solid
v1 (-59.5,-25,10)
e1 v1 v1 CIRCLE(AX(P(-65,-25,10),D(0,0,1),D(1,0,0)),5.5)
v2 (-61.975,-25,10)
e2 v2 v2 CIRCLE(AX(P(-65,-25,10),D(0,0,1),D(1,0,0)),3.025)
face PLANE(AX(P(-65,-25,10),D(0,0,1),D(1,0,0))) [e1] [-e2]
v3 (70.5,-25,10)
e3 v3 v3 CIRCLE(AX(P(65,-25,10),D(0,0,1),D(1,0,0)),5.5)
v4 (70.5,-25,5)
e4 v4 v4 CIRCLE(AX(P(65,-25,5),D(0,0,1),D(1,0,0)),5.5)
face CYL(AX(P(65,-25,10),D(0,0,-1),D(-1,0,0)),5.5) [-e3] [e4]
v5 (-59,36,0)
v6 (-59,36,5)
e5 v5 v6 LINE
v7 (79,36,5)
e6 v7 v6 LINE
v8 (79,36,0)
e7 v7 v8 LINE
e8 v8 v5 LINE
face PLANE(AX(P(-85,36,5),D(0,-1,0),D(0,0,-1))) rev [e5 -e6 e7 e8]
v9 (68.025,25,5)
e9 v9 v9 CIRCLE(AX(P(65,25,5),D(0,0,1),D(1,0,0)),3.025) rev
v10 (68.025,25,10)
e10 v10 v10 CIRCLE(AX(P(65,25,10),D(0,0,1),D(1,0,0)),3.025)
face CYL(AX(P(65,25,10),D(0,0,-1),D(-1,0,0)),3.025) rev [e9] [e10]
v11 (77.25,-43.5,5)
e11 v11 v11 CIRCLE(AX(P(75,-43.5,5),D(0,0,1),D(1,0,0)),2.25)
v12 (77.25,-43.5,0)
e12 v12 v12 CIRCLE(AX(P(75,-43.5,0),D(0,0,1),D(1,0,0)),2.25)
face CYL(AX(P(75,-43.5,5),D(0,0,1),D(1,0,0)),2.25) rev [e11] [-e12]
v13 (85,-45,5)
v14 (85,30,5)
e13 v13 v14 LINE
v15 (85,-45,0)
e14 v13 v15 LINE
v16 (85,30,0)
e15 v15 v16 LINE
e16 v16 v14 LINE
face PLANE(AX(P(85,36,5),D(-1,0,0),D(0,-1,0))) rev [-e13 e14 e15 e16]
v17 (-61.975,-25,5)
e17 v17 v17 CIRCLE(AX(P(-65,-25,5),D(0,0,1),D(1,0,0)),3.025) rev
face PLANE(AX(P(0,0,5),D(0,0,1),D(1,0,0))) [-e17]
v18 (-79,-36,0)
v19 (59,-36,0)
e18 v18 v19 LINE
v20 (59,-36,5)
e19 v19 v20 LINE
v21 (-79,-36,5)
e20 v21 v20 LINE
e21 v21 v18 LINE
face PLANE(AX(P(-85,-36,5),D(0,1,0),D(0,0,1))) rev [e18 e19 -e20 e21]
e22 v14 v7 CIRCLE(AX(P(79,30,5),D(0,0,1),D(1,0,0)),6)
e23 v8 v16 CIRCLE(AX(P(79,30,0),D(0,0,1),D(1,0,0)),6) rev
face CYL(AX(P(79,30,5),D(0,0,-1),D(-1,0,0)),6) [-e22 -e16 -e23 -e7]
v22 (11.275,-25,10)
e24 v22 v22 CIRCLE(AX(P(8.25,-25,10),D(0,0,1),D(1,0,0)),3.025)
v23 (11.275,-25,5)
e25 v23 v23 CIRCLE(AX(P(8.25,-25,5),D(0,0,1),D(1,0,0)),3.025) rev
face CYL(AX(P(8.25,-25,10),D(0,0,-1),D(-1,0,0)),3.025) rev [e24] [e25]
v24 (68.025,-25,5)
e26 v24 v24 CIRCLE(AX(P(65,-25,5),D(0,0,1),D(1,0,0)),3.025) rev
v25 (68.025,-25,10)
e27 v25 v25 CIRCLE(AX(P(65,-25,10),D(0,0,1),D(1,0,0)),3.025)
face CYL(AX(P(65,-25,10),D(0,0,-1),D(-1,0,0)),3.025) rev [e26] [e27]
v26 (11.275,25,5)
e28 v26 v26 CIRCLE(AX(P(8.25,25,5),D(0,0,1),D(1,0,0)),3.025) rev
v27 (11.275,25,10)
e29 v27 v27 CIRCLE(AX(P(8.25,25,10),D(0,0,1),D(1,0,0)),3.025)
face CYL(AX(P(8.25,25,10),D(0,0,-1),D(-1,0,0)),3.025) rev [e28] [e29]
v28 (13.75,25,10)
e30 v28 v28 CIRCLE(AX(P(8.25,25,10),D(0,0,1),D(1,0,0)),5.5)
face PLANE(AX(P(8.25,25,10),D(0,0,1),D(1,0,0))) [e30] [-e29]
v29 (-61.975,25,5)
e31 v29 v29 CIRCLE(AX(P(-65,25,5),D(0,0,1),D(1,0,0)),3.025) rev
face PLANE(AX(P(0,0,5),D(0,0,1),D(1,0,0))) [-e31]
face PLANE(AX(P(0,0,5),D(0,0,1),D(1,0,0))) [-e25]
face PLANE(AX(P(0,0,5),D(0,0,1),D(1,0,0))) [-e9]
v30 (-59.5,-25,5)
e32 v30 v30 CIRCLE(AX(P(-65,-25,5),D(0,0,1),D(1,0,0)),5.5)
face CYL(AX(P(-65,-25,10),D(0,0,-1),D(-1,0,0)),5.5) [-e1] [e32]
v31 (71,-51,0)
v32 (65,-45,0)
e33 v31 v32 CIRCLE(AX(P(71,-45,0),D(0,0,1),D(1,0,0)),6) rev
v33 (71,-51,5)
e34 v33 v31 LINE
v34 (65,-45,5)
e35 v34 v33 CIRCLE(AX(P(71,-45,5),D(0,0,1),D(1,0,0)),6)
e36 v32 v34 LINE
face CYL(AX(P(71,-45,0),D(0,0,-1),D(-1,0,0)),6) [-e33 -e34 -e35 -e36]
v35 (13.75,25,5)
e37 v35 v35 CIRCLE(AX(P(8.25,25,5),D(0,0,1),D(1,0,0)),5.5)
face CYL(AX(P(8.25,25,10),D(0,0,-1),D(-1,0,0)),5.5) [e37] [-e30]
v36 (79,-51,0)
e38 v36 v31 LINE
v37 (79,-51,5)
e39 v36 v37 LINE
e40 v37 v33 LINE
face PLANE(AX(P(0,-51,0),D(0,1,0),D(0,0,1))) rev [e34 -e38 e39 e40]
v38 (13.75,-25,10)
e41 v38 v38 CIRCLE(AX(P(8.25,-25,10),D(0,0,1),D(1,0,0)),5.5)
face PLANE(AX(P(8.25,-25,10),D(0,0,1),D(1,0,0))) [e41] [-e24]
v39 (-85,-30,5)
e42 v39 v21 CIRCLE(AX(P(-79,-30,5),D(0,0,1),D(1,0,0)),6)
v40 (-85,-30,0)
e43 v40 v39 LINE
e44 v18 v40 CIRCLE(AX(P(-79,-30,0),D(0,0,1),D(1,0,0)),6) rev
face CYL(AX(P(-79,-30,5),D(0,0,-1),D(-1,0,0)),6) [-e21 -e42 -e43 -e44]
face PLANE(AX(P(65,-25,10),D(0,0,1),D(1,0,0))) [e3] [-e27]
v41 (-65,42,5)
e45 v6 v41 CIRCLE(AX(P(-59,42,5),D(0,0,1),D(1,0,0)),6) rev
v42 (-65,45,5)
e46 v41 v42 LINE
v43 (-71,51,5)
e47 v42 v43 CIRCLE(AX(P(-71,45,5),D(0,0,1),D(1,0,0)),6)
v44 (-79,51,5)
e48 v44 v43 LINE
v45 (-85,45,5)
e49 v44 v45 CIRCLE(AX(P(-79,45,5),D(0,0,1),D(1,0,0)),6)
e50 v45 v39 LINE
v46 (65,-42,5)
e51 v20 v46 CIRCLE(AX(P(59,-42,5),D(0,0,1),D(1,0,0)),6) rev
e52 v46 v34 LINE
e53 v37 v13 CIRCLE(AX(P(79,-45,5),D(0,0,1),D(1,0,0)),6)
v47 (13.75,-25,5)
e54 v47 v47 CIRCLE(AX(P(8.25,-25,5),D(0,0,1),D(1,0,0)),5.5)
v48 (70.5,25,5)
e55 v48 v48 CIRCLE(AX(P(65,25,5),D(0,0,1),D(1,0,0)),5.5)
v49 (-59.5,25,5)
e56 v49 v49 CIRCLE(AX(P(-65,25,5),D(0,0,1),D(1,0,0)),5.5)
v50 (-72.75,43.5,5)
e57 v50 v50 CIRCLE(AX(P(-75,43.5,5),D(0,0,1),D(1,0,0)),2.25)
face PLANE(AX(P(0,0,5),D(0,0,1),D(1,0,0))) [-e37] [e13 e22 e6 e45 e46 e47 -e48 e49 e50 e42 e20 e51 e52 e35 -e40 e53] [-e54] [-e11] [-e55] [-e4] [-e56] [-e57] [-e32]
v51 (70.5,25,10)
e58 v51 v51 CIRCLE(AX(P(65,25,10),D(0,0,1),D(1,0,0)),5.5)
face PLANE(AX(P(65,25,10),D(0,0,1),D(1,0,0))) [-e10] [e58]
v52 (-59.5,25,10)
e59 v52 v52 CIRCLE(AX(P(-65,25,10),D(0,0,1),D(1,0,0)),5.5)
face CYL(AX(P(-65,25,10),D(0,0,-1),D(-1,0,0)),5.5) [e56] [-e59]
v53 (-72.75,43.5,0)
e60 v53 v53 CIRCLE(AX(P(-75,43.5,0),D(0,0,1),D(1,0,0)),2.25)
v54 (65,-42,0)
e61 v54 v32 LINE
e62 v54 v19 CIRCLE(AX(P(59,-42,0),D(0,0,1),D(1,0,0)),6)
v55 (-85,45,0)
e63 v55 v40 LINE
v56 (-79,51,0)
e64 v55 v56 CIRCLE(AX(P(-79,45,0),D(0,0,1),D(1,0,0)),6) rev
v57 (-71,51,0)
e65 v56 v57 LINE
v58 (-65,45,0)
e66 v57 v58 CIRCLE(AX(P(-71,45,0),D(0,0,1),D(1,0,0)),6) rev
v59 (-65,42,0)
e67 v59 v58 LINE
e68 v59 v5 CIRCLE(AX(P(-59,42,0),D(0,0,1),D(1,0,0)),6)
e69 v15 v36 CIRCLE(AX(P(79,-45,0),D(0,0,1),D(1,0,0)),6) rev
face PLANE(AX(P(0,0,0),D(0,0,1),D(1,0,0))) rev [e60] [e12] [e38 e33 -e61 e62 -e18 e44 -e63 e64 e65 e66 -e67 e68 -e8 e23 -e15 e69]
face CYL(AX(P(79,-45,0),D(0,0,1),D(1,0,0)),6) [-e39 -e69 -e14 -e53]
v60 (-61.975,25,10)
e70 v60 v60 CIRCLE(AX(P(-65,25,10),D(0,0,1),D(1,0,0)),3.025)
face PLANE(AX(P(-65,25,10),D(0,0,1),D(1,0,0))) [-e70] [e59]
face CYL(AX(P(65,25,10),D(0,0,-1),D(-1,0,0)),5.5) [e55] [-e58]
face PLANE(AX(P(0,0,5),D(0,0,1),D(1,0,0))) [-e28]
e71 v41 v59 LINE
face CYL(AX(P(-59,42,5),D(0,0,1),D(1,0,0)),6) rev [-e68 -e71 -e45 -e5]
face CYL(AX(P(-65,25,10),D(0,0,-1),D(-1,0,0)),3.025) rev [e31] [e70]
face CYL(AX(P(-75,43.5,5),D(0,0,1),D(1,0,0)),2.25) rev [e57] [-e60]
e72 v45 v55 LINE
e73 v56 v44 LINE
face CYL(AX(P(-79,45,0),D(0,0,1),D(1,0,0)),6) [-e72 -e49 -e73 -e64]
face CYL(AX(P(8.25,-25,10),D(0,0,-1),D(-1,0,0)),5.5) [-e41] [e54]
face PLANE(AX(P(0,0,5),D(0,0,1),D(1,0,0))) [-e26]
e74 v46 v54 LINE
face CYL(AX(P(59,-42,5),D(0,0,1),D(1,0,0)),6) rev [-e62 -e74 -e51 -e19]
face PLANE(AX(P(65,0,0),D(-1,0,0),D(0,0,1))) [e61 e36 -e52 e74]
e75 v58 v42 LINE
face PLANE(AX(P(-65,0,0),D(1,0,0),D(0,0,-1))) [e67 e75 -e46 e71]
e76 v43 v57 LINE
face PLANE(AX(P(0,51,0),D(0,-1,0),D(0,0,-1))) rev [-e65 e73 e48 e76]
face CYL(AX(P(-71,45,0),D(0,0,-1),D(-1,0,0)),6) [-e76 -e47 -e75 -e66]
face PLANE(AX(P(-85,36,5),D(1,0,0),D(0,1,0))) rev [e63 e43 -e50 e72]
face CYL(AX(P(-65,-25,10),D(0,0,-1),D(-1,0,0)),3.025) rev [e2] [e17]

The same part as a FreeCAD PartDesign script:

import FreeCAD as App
import Part
import Sketcher

V = App.Vector


def edges_at(feature, points):
    """Names of the edges that pass closest to the given points."""
    edges = feature.Shape.Edges
    near = lambda p: min(range(len(edges)), key=lambda i: edges[i].distToShape(Part.Vertex(*p))[0])
    return sorted({f"Edge{near(p) + 1}" for p in points})


def add_polygon(sketch, points):
    """Adds a closed chain of lines whose ends are joined by coincident constraints."""
    first, n = sketch.GeometryCount, len(points)
    for a, b in zip(points, points[1:] + points[:1]):
        sketch.addGeometry(Part.LineSegment(App.Vector(*a, 0), App.Vector(*b, 0)), False)
    for i in range(n):
        sketch.addConstraint(Sketcher.Constraint("Coincident", first + i, 2, first + (i + 1) % n, 1))

doc = App.newDocument("Part")
params = doc.addObject("Spreadsheet::Sheet", "Params")
for row, (alias, value) in enumerate([
    ("sketch1_width", "170 mm"),
    ("sketch1_height", "72 mm"),
    ("pad1_length", "5 mm"),
    ("sketch2_diameter", "11 mm"),
    ("sketch2_diameter2", "6.05 mm"),
    ("pad2_length", "5 mm"),
    ("sketch3_width", "20 mm"),
    ("sketch3_height", "15 mm"),
    ("pad3_length", "5 mm"),
    ("fillet_radius", "6 mm"),
    ("sketch4_diameter", "4.5 mm"),
    ("hole_diameter", "4.5 mm"),
], start=1):
    params.set(f"A{row}", alias)
    params.set(f"B{row}", "=" + value)
    params.setAlias(f"B{row}", alias)

body = doc.addObject("PartDesign::Body", "Body")

# Sketch on XY plane
sketch1 = body.newObject("Sketcher::SketchObject", "Sketch")
sketch1.AttachmentSupport = (doc.getObject("XY_Plane"), [""])
sketch1.MapMode = "FlatFace"
add_polygon(sketch1, [(-85, 36), (-85, -36), (85, -36), (85, 36)])  # lines 0-3
sketch1.addConstraint([
    Sketcher.Constraint("Vertical", 0),
    Sketcher.Constraint("Horizontal", 1),
    Sketcher.Constraint("Vertical", 2),
    Sketcher.Constraint("Horizontal", 3),
    Sketcher.Constraint("Symmetric", 0, 2, 2, 2, -1, 1),
    Sketcher.Constraint("DistanceX", 1, 1, 1, 2, 170.0),
    Sketcher.Constraint("DistanceY", 0, 2, 0, 1, 72.0),
])
sketch1.setExpression("Constraints[9]", "Params.sketch1_width")
sketch1.setExpression("Constraints[10]", "Params.sketch1_height")
pad1 = body.newObject("PartDesign::Pad", "Pad")
pad1.Profile = sketch1
pad1.setExpression("Length", "Params.pad1_length")

# Sketch on XY plane
sketch2 = body.newObject("Sketcher::SketchObject", "Sketch001")
sketch2.AttachmentSupport = (doc.getObject("XY_Plane"), [""])
sketch2.MapMode = "FlatFace"
sketch2.AttachmentOffset = App.Placement(V(0, 0, 5), App.Rotation())
sketch2.addGeometry([
    Part.Circle(V(65, 25, 0), V(0, 0, 1), 5.5),  # 0
    Part.Circle(V(65, 25, 0), V(0, 0, 1), 3),  # 1
    Part.Circle(V(8.2, 25, 0), V(0, 0, 1), 5.5),  # 2
    Part.Circle(V(8.2, 25, 0), V(0, 0, 1), 3),  # 3
    Part.Circle(V(-65, 25, 0), V(0, 0, 1), 5.5),  # 4
    Part.Circle(V(-65, 25, 0), V(0, 0, 1), 3),  # 5
    Part.Circle(V(-65, -25, 0), V(0, 0, 1), 5.5),  # 6
    Part.Circle(V(-65, -25, 0), V(0, 0, 1), 3),  # 7
    Part.Circle(V(8.2, -25, 0), V(0, 0, 1), 5.5),  # 8
    Part.Circle(V(8.2, -25, 0), V(0, 0, 1), 3),  # 9
    Part.Circle(V(65, -25, 0), V(0, 0, 1), 5.5),  # 10
    Part.Circle(V(65, -25, 0), V(0, 0, 1), 3),  # 11
], False)
sketch2.addConstraint([
    Sketcher.Constraint("Coincident", 1, 3, 0, 3),
    Sketcher.Constraint("Coincident", 3, 3, 2, 3),
    Sketcher.Constraint("Coincident", 5, 3, 4, 3),
    Sketcher.Constraint("Coincident", 7, 3, 6, 3),
    Sketcher.Constraint("Coincident", 9, 3, 8, 3),
    Sketcher.Constraint("Coincident", 11, 3, 10, 3),
    Sketcher.Constraint("Equal", 0, 2),
    Sketcher.Constraint("Equal", 1, 3),
    Sketcher.Constraint("Equal", 2, 4),
    Sketcher.Constraint("Equal", 3, 5),
    Sketcher.Constraint("Equal", 4, 6),
    Sketcher.Constraint("Equal", 5, 7),
    Sketcher.Constraint("Equal", 6, 8),
    Sketcher.Constraint("Equal", 7, 9),
    Sketcher.Constraint("Equal", 8, 10),
    Sketcher.Constraint("Equal", 9, 11),
    Sketcher.Constraint("Symmetric", 0, 3, 6, 3, -1, 1),
    Sketcher.Constraint("Symmetric", 4, 3, 10, 3, -1, 1),
    Sketcher.Constraint("Symmetric", 0, 3, 4, 3, -2),
    Sketcher.Constraint("Symmetric", 2, 3, 8, 3, -1),
    Sketcher.Constraint("Horizontal", 1, 3, 2, 3),
    Sketcher.Constraint("Diameter", 0, 11.0),
    Sketcher.Constraint("Diameter", 1, 6.05),
    Sketcher.Constraint("DistanceX", -1, 1, 0, 3, 65.0),
    Sketcher.Constraint("DistanceY", -1, 1, 0, 3, 25.0),
    Sketcher.Constraint("DistanceX", -1, 1, 2, 3, 8.25),
])
sketch2.setExpression("Constraints[21]", "Params.sketch2_diameter")
sketch2.setExpression("Constraints[22]", "Params.sketch2_diameter2")
pad2 = body.newObject("PartDesign::Pad", "Pad001")
pad2.Profile = sketch2
pad2.setExpression("Length", "Params.pad2_length")

# Sketch on XY plane
sketch3 = body.newObject("Sketcher::SketchObject", "Sketch002")
sketch3.AttachmentSupport = (doc.getObject("XY_Plane"), [""])
sketch3.MapMode = "FlatFace"
sketch3.AttachmentOffset = App.Placement(V(0, 0, 5), App.Rotation())
add_polygon(sketch3, [(-85, 51), (-85, 36), (-65, 36), (-65, 51)])  # lines 0-3
add_polygon(sketch3, [(85, -36), (65, -36), (65, -51), (85, -51)])  # lines 4-7
sketch3.addConstraint([
    Sketcher.Constraint("Vertical", 0),
    Sketcher.Constraint("Horizontal", 1),
    Sketcher.Constraint("Vertical", 2),
    Sketcher.Constraint("Horizontal", 3),
    Sketcher.Constraint("Horizontal", 4),
    Sketcher.Constraint("Vertical", 5),
    Sketcher.Constraint("Horizontal", 6),
    Sketcher.Constraint("Vertical", 7),
    Sketcher.Constraint("Symmetric", 1, 2, 4, 2, -1, 1),
    Sketcher.Constraint("Symmetric", 3, 2, 6, 2, -1, 1),
    Sketcher.Constraint("DistanceX", 1, 1, 1, 2, 20.0),
    Sketcher.Constraint("DistanceY", 0, 2, 0, 1, 15.0),
    Sketcher.Constraint("DistanceX", 0, 2, -1, 1, 85.0),
    Sketcher.Constraint("DistanceY", -1, 1, 0, 2, 36.0),
])
sketch3.setExpression("Constraints[18]", "Params.sketch3_width")
sketch3.setExpression("Constraints[19]", "Params.sketch3_height")
pad3 = body.newObject("PartDesign::Pad", "Pad002")
pad3.Profile = sketch3
pad3.setExpression("Length", "Params.pad3_length")
pad3.Reversed = True
doc.recompute()

fillet = body.newObject("PartDesign::Fillet", "Fillet")
fillet.Base = (pad3, edges_at(pad3, [
    (-85, 51, 2.5),
    (-65, 51, 2.5),
    (-65, 36, 2.5),
    (65, -51, 2.5),
    (65, -36, 2.5),
    (85, -51, 2.5),
    (-85, -36, 2.5),
    (85, 36, 2.5),
]))
fillet.setExpression("Radius", "Params.fillet_radius")

# Sketch on XY plane
sketch4 = body.newObject("Sketcher::SketchObject", "Sketch003")
sketch4.AttachmentSupport = (doc.getObject("XY_Plane"), [""])
sketch4.MapMode = "FlatFace"
sketch4.AttachmentOffset = App.Placement(V(0, 0, 5), App.Rotation())
sketch4.addGeometry([
    Part.Circle(V(-75, 43.5, 0), V(0, 0, 1), 2.2),
    Part.Circle(V(75, -43.5, 0), V(0, 0, 1), 2.2),
], False)
sketch4.addConstraint([
    Sketcher.Constraint("Equal", 0, 1),
    Sketcher.Constraint("Symmetric", 0, 3, 1, 3, -1, 1),
    Sketcher.Constraint("Diameter", 0, 4.5),
    Sketcher.Constraint("DistanceX", 0, 3, -1, 1, 75.0),
    Sketcher.Constraint("DistanceY", 1, 3, 0, 3, 87.0),
])
sketch4.setExpression("Constraints[2]", "Params.sketch4_diameter")
doc.recompute()
hole = body.newObject("PartDesign::Hole", "Hole")
hole.Profile = sketch4
hole.ThreadType = "None"
hole.setExpression("Diameter", "Params.hole_diameter")
hole.DepthType = "ThroughAll"

doc.recompute()
